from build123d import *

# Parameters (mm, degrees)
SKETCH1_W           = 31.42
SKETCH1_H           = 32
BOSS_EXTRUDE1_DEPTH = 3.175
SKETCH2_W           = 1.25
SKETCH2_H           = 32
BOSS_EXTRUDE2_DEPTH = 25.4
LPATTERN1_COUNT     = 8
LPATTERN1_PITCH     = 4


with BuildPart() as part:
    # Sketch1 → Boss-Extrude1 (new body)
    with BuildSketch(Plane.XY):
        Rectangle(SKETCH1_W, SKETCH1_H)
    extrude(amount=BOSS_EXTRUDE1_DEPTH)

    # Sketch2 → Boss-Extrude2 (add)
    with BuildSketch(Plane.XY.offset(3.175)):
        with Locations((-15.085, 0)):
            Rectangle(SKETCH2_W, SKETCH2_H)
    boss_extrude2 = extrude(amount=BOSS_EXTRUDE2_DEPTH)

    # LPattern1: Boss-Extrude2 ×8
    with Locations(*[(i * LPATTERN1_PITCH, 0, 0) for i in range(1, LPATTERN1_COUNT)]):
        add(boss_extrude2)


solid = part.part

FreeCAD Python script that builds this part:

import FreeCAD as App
import Part
import Sketcher
Q = App.Units.Quantity


def add_polygon(sketch, points):
    """Adds a closed chain of lines whose ends are joined by coincident constraints."""
    first, n = sketch.GeometryCount, len(points)
    for a, b in zip(points, points[1:] + points[:1]):
        sketch.addGeometry(Part.LineSegment(App.Vector(*a, 0), App.Vector(*b, 0)), False)
    for i in range(n):
        sketch.addConstraint(Sketcher.Constraint("Coincident", first + i, 2, first + (i + 1) % n, 1))

doc = App.newDocument("Part")
body = doc.addObject("PartDesign::Body", "Body")

sketch1 = body.newObject("Sketcher::SketchObject", "Sketch")
sketch1.AttachmentSupport = (doc.getObject("XY_Plane"), [""])
sketch1.MapMode = "FlatFace"
add_polygon(sketch1, [(-15.71, 16), (-15.71, -16), (15.71, -16), (15.71, 16)])
sketch1.addConstraint(Sketcher.Constraint("Vertical", 0))
sketch1.addConstraint(Sketcher.Constraint("Horizontal", 1))
sketch1.addConstraint(Sketcher.Constraint("Vertical", 2))
sketch1.addConstraint(Sketcher.Constraint("Horizontal", 3))
sketch1.addConstraint(Sketcher.Constraint("Symmetric", 0, 2, 2, 2, -1, 1))
sketch1.addConstraint(Sketcher.Constraint("DistanceX", 1, 1, 1, 2, Q("31.42 mm")))
sketch1.addConstraint(Sketcher.Constraint("DistanceY", 0, 2, 0, 1, Q("32 mm")))
pad1 = body.newObject("PartDesign::Pad", "Pad")
pad1.Profile = sketch1
pad1.Length = Q("0.125 in")

sketch2 = body.newObject("Sketcher::SketchObject", "Sketch001")
sketch2.AttachmentSupport = (doc.getObject("XY_Plane"), [""])
sketch2.MapMode = "FlatFace"
sketch2.AttachmentOffset = App.Placement(App.Vector(0, 0, 0.125 * 25.4), App.Rotation())
add_polygon(sketch2, [(-15.71, 16), (-15.71, -16), (-14.46, -16), (-14.46, 16)])
sketch2.addConstraint(Sketcher.Constraint("Vertical", 0))
sketch2.addConstraint(Sketcher.Constraint("Horizontal", 1))
sketch2.addConstraint(Sketcher.Constraint("Vertical", 2))
sketch2.addConstraint(Sketcher.Constraint("Horizontal", 3))
sketch2.addConstraint(Sketcher.Constraint("DistanceX", 1, 1, 1, 2, Q("1.25 mm")))
sketch2.addConstraint(Sketcher.Constraint("DistanceY", 0, 2, 0, 1, Q("32 mm")))
sketch2.addConstraint(Sketcher.Constraint("DistanceX", 0, 2, -1, 1, Q("15.71 mm")))
sketch2.addConstraint(Sketcher.Constraint("DistanceY", 0, 2, -1, 1, Q("16 mm")))
pad2 = body.newObject("PartDesign::Pad", "Pad001")
pad2.Profile = sketch2
pad2.Length = Q("1 in")
doc.recompute()

linearpattern = body.newObject("PartDesign::LinearPattern", "LinearPattern")
linearpattern.Originals = [pad2]
linearpattern.Direction = (doc.getObject("X_Axis"), [""])
linearpattern.Mode = "offset"
linearpattern.Offset = 4
linearpattern.Occurrences = 8
body.Tip = linearpattern

doc.recompute()
